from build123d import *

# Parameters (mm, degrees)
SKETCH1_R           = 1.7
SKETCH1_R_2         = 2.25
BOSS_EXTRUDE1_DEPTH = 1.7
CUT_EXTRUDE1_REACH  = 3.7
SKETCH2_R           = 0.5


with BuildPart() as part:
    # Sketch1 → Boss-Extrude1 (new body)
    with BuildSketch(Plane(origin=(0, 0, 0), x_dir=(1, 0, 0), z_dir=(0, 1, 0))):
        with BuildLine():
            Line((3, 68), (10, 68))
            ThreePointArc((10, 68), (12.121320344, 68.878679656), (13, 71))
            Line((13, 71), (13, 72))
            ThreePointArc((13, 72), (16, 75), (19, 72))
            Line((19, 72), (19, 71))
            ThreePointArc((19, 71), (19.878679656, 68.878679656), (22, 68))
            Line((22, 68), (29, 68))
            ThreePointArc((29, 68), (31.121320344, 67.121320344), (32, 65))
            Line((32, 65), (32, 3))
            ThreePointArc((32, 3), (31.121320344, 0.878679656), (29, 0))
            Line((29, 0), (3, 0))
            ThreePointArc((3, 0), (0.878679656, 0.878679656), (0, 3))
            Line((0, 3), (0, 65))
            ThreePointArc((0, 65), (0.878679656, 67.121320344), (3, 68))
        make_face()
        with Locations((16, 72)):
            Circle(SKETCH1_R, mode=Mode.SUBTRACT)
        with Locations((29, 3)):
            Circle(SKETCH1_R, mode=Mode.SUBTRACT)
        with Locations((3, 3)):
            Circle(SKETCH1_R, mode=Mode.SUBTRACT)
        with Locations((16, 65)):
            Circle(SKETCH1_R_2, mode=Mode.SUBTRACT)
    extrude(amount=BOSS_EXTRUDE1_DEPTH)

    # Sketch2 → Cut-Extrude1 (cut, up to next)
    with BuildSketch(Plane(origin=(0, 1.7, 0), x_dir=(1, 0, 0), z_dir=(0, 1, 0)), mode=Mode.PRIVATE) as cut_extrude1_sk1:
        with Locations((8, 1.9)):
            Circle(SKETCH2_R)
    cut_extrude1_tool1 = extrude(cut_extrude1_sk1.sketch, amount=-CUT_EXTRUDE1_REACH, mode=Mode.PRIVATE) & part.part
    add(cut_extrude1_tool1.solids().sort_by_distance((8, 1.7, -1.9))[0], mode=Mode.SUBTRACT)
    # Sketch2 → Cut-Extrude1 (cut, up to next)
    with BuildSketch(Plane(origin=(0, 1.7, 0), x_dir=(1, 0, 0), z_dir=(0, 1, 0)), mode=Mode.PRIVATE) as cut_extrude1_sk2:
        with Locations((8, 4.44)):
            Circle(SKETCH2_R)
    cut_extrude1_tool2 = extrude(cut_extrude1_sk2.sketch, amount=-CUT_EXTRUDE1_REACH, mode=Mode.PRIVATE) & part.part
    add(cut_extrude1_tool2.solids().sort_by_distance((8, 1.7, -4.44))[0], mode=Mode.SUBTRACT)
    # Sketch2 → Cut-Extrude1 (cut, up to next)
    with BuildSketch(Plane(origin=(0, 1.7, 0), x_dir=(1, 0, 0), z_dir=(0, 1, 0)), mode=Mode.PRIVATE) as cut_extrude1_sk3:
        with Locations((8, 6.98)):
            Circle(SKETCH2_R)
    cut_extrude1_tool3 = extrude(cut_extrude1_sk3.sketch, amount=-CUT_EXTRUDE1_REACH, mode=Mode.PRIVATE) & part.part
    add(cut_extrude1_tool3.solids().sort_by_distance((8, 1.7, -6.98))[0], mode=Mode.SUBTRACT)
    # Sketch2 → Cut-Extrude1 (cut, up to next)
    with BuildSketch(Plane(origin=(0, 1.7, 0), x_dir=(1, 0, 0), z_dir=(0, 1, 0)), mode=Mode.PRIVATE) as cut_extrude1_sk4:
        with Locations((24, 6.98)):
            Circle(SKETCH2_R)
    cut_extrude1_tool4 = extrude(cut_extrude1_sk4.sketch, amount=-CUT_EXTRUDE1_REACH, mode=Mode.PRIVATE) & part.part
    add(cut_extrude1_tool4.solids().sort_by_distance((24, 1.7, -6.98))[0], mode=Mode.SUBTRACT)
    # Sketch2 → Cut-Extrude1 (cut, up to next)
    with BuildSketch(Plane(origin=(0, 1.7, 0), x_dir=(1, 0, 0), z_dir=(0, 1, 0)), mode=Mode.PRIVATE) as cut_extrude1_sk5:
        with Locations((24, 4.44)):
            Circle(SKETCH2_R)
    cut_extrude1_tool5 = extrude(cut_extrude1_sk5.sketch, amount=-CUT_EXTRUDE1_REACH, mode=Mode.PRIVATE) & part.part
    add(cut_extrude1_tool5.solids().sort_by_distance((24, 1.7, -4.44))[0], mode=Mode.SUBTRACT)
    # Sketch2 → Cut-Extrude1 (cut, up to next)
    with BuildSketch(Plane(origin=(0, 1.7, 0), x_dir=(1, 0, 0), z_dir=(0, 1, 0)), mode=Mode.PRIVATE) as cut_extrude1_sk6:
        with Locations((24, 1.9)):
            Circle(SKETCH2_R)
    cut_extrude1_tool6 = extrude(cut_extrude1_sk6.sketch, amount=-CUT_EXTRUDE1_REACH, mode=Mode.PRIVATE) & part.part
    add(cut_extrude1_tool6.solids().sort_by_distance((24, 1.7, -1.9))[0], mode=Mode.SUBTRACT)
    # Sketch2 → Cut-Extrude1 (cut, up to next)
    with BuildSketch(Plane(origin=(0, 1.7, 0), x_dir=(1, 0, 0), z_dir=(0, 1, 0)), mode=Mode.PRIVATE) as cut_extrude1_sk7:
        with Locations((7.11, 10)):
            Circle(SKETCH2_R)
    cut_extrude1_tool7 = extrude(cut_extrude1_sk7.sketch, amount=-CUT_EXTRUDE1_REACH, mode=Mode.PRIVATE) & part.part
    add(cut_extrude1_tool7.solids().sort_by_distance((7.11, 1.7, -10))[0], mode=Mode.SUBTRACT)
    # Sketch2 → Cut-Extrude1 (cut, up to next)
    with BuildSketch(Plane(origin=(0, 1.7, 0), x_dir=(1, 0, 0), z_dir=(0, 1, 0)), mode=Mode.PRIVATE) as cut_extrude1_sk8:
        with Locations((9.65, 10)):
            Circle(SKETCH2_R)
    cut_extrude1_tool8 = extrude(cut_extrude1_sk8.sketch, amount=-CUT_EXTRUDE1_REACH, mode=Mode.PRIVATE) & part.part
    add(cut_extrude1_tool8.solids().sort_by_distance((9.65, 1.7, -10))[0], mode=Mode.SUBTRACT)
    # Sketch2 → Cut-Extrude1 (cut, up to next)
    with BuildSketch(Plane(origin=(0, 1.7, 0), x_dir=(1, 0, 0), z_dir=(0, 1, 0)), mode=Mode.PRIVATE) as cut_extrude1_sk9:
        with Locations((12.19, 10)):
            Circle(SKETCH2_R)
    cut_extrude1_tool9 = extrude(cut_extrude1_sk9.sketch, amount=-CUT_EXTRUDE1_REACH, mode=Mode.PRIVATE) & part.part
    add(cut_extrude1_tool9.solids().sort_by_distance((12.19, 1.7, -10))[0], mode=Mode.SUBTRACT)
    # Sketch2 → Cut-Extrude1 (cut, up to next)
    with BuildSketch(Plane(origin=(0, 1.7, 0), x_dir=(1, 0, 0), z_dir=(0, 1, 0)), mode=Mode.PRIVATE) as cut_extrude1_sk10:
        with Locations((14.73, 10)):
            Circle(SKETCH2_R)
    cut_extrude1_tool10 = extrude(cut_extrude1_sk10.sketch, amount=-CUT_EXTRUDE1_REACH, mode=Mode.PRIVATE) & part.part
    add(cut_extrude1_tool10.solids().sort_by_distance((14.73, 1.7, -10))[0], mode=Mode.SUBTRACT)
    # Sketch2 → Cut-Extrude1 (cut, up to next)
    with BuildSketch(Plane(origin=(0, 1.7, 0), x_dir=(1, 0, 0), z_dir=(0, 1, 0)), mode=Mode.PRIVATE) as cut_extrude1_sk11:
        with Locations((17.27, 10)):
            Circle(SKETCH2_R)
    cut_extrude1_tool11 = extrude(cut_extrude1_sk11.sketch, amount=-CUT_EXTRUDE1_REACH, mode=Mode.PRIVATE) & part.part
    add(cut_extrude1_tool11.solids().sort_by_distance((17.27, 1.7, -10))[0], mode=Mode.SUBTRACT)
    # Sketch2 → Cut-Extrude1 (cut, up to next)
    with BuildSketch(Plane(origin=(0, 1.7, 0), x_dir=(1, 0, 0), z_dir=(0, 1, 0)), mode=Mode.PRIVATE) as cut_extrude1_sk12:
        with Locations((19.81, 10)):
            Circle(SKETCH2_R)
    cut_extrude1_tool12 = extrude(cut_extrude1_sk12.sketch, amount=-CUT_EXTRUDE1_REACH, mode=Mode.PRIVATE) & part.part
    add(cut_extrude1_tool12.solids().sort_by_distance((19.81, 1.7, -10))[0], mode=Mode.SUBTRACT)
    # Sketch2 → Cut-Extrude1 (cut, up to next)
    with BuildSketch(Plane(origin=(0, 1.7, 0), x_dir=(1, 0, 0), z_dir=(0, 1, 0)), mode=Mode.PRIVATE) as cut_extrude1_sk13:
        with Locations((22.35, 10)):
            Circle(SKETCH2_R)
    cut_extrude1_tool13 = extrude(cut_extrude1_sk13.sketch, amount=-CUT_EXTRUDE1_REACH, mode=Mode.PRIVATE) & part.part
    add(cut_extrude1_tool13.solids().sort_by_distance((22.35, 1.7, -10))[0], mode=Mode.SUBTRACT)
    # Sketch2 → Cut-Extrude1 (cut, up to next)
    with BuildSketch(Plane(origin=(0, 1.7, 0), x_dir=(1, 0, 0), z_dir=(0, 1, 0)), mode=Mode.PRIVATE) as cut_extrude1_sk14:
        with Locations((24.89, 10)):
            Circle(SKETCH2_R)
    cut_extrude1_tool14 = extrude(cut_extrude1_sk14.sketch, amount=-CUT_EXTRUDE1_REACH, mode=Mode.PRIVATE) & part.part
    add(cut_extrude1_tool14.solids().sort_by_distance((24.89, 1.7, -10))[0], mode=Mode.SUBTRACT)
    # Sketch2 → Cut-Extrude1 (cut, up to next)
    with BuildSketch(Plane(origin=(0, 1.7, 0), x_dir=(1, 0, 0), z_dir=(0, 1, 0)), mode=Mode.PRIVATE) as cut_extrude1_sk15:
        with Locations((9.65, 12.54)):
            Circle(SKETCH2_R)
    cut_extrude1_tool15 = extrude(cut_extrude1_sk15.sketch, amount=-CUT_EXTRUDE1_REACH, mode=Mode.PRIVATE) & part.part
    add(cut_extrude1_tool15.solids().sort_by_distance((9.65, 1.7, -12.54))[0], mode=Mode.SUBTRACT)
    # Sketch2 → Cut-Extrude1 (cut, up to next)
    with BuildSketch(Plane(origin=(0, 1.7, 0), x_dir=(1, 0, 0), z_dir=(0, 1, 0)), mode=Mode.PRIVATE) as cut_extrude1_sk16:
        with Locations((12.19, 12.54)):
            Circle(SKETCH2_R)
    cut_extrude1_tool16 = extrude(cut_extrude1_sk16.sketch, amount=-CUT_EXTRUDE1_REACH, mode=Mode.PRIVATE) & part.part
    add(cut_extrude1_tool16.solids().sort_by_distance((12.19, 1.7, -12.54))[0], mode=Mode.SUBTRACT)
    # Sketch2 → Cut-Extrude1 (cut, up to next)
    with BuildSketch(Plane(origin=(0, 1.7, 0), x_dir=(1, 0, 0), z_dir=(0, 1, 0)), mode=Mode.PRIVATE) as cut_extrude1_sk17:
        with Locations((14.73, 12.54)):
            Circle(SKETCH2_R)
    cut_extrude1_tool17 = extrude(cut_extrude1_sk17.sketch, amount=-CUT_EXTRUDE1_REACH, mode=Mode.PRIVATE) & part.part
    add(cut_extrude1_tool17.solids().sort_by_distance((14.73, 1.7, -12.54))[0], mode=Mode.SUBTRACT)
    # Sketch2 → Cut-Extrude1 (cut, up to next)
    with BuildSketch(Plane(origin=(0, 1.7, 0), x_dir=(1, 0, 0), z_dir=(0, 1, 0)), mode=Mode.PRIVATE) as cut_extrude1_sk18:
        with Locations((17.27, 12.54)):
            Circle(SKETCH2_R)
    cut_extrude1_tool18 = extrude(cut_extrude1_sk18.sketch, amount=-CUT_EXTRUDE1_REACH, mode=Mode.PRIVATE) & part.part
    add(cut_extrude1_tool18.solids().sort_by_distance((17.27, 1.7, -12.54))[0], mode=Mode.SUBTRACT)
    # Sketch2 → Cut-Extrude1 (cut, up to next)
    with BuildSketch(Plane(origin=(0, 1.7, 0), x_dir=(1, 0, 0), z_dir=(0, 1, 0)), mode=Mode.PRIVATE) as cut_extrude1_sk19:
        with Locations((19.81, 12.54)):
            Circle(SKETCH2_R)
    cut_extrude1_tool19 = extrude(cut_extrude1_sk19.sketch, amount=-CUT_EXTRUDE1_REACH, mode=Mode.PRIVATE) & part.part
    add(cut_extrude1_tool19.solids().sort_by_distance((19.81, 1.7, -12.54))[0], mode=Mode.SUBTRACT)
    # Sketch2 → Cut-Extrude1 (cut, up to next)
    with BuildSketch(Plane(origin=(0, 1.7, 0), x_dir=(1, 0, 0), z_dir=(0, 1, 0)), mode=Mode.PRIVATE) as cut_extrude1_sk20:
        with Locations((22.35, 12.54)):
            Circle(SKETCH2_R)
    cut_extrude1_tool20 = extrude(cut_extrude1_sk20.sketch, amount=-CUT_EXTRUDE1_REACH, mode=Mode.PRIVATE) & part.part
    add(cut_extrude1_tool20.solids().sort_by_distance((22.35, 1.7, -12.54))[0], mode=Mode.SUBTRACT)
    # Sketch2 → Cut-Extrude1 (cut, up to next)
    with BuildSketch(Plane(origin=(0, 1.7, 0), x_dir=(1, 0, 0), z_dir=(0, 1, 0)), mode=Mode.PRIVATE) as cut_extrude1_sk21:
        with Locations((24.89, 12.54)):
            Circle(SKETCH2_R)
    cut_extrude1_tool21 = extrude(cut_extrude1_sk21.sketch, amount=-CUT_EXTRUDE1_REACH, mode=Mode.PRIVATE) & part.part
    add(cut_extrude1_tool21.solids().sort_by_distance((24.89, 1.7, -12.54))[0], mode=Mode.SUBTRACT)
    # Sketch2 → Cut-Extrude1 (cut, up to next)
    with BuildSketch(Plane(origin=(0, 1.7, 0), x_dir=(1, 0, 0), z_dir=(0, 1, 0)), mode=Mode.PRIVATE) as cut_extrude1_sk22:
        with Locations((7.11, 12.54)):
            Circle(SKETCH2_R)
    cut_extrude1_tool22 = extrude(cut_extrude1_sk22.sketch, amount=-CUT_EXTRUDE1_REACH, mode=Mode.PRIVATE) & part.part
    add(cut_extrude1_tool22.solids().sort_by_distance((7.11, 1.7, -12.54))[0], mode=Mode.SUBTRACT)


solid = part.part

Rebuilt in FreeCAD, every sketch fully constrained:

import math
import FreeCAD as App
import Part
import Sketcher
from FreeCAD import Vector
Q = App.Units.Quantity

doc = App.newDocument("Part")
body = doc.addObject("PartDesign::Body", "Body")

# Sketch on XZ plane
sketch1 = doc.addObject("Sketcher::SketchObject", "Sketch")
body.addObject(sketch1)
sketch1.AttachmentSupport = (doc.XZ_Plane, [""])
sketch1.MapMode = "FlatFace"
sketch1.addGeometry([
    Part.LineSegment(Vector(10, -68, 0), Vector(3, -68, 0)),  # 0
    Part.ArcOfCircle(Part.Circle(Vector(3, -65, 0), Vector(0, 0, 1), 3), math.radians(180), math.radians(270)),  # 1
    Part.LineSegment(Vector(0, -65, 0), Vector(0, -3, 0)),  # 2
    Part.ArcOfCircle(Part.Circle(Vector(3, -3, 0), Vector(0, 0, 1), 3), math.radians(90), math.radians(180)),  # 3
    Part.LineSegment(Vector(3, 0, 0), Vector(29, 0, 0)),  # 4
    Part.ArcOfCircle(Part.Circle(Vector(29, -3, 0), Vector(0, 0, 1), 3), math.radians(0), math.radians(90)),  # 5
    Part.LineSegment(Vector(32, -3, 0), Vector(32, -65, 0)),  # 6
    Part.ArcOfCircle(Part.Circle(Vector(29, -65, 0), Vector(0, 0, 1), 3), math.radians(-90), math.radians(0)),  # 7
    Part.LineSegment(Vector(29, -68, 0), Vector(22, -68, 0)),  # 8
    Part.ArcOfCircle(Part.Circle(Vector(22, -71, 0), Vector(0, 0, 1), 3), math.radians(90), math.radians(180)),  # 9
    Part.LineSegment(Vector(19, -71, 0), Vector(19, -72, 0)),  # 10
    Part.ArcOfCircle(Part.Circle(Vector(16, -72, 0), Vector(0, 0, 1), 3), math.radians(180), math.radians(360)),  # 11
    Part.LineSegment(Vector(13, -72, 0), Vector(13, -71, 0)),  # 12
    Part.ArcOfCircle(Part.Circle(Vector(10, -71, 0), Vector(0, 0, 1), 3), math.radians(0), math.radians(90)),  # 13
    Part.Circle(Vector(29, -3, 0), Vector(0, 0, 1), 1.7),  # 14
    Part.Circle(Vector(3, -3, 0), Vector(0, 0, 1), 1.7),  # 15
    Part.Circle(Vector(16, -65, 0), Vector(0, 0, 1), 2.2),  # 16
    Part.Circle(Vector(16, -72, 0), Vector(0, 0, 1), 1.7),  # 17
], False)
sketch1.addConstraint([
    Sketcher.Constraint("Tangent", 0, 2, 1, 2),
    Sketcher.Constraint("Tangent", 1, 1, 2, 1),
    Sketcher.Constraint("Tangent", 2, 2, 3, 2),
    Sketcher.Constraint("Tangent", 3, 1, 4, 1),
    Sketcher.Constraint("Tangent", 4, 2, 5, 2),
    Sketcher.Constraint("Tangent", 5, 1, 6, 1),
    Sketcher.Constraint("Tangent", 6, 2, 7, 2),
    Sketcher.Constraint("Tangent", 7, 1, 8, 1),
    Sketcher.Constraint("Tangent", 8, 2, 9, 1),
    Sketcher.Constraint("Tangent", 9, 2, 10, 1),
    Sketcher.Constraint("Tangent", 10, 2, 11, 2),
    Sketcher.Constraint("Tangent", 11, 1, 12, 1),
    Sketcher.Constraint("Tangent", 12, 2, 13, 1),
    Sketcher.Constraint("Tangent", 13, 2, 0, 1),
    Sketcher.Constraint("Horizontal", 0),
    Sketcher.Constraint("Vertical", 2),
    Sketcher.Constraint("Horizontal", 4),
    Sketcher.Constraint("Vertical", 6),
    Sketcher.Constraint("Horizontal", 8),
    Sketcher.Constraint("Vertical", 10),
    Sketcher.Constraint("Vertical", 12),
    Sketcher.Constraint("Coincident", 14, 3, 5, 3),
    Sketcher.Constraint("Coincident", 15, 3, 3, 3),
    Sketcher.Constraint("Coincident", 17, 3, 11, 3),
    Sketcher.Constraint("Equal", 1, 3),
    Sketcher.Constraint("Equal", 3, 5),
    Sketcher.Constraint("Equal", 5, 7),
    Sketcher.Constraint("Equal", 7, 9),
    Sketcher.Constraint("Equal", 9, 11),
    Sketcher.Constraint("Equal", 11, 13),
    Sketcher.Constraint("Equal", 14, 15),
    Sketcher.Constraint("Equal", 15, 17),
    Sketcher.Constraint("PointOnObject", 1, 1, -2),
    Sketcher.Constraint("PointOnObject", 3, 1, -1),
    Sketcher.Constraint("Horizontal", 1, 3, 7, 3),
    Sketcher.Constraint("Horizontal", 7, 3, 16, 3),
    Sketcher.Constraint("Vertical", 11, 3, 16, 3),
    Sketcher.Constraint("Equal", 0, 8),
    Sketcher.Constraint("Radius", 1, Q("3 mm")),
    Sketcher.Constraint("Diameter", 14, Q("3.4 mm")),
    Sketcher.Constraint("Diameter", 16, Q("4.5 mm")),
    Sketcher.Constraint("DistanceX", 0, 2, 0, 1, Q("7 mm")),
    Sketcher.Constraint("DistanceY", 2, 1, 2, 2, Q("62 mm")),
    Sketcher.Constraint("DistanceY", 10, 2, 10, 1, Q("1 mm")),
])
pad1 = doc.addObject("PartDesign::Pad", "Pad")
body.addObject(pad1)
pad1.Profile = sketch1
pad1.Length = 1.7
pad1.Reversed = True

# Sketch on XZ plane
sketch2 = doc.addObject("Sketcher::SketchObject", "Sketch001")
body.addObject(sketch2)
sketch2.AttachmentSupport = (doc.XZ_Plane, [""])
sketch2.MapMode = "FlatFace"
sketch2.AttachmentOffset = App.Placement(Vector(0, 0, -1.7), App.Rotation())
sketch2.addGeometry(Part.Circle(Vector(8, -1.9, 0), Vector(0, 0, 1), 0.5), False)
sketch2.addConstraint([
    Sketcher.Constraint("Diameter", 0, Q("1 mm")),
    Sketcher.Constraint("DistanceX", -1, 1, 0, 3, Q("8 mm")),
    Sketcher.Constraint("DistanceY", 0, 3, -1, 1, Q("1.9 mm")),
])
pocket1 = doc.addObject("PartDesign::Pocket", "Pocket")
body.addObject(pocket1)
pocket1.Profile = sketch2
pocket1.Type = "UpToFirst"
pocket1.Reversed = True

# Sketch on XZ plane
sketch3 = doc.addObject("Sketcher::SketchObject", "Sketch002")
body.addObject(sketch3)
sketch3.AttachmentSupport = (doc.XZ_Plane, [""])
sketch3.MapMode = "FlatFace"
sketch3.AttachmentOffset = App.Placement(Vector(0, 0, -1.7), App.Rotation())
sketch3.addGeometry(Part.Circle(Vector(8, -4.4, 0), Vector(0, 0, 1), 0.5), False)
sketch3.addConstraint([
    Sketcher.Constraint("Diameter", 0, Q("1 mm")),
    Sketcher.Constraint("DistanceX", -1, 1, 0, 3, Q("8 mm")),
    Sketcher.Constraint("DistanceY", 0, 3, -1, 1, Q("4.44 mm")),
])
pocket2 = doc.addObject("PartDesign::Pocket", "Pocket001")
body.addObject(pocket2)
pocket2.Profile = sketch3
pocket2.Type = "UpToFirst"
pocket2.Reversed = True

# Sketch on XZ plane
sketch4 = doc.addObject("Sketcher::SketchObject", "Sketch003")
body.addObject(sketch4)
sketch4.AttachmentSupport = (doc.XZ_Plane, [""])
sketch4.MapMode = "FlatFace"
sketch4.AttachmentOffset = App.Placement(Vector(0, 0, -1.7), App.Rotation())
sketch4.addGeometry(Part.Circle(Vector(8, -7, 0), Vector(0, 0, 1), 0.5), False)
sketch4.addConstraint([
    Sketcher.Constraint("Diameter", 0, Q("1 mm")),
    Sketcher.Constraint("DistanceX", -1, 1, 0, 3, Q("8 mm")),
    Sketcher.Constraint("DistanceY", 0, 3, -1, 1, Q("6.98 mm")),
])
pocket3 = doc.addObject("PartDesign::Pocket", "Pocket002")
body.addObject(pocket3)
pocket3.Profile = sketch4
pocket3.Type = "UpToFirst"
pocket3.Reversed = True

# Sketch on XZ plane
sketch5 = doc.addObject("Sketcher::SketchObject", "Sketch004")
body.addObject(sketch5)
sketch5.AttachmentSupport = (doc.XZ_Plane, [""])
sketch5.MapMode = "FlatFace"
sketch5.AttachmentOffset = App.Placement(Vector(0, 0, -1.7), App.Rotation())
sketch5.addGeometry(Part.Circle(Vector(24, -7, 0), Vector(0, 0, 1), 0.5), False)
sketch5.addConstraint([
    Sketcher.Constraint("Diameter", 0, Q("1 mm")),
    Sketcher.Constraint("DistanceX", -1, 1, 0, 3, Q("24 mm")),
    Sketcher.Constraint("DistanceY", 0, 3, -1, 1, Q("6.98 mm")),
])
pocket4 = doc.addObject("PartDesign::Pocket", "Pocket003")
body.addObject(pocket4)
pocket4.Profile = sketch5
pocket4.Type = "UpToFirst"
pocket4.Reversed = True

# Sketch on XZ plane
sketch6 = doc.addObject("Sketcher::SketchObject", "Sketch005")
body.addObject(sketch6)
sketch6.AttachmentSupport = (doc.XZ_Plane, [""])
sketch6.MapMode = "FlatFace"
sketch6.AttachmentOffset = App.Placement(Vector(0, 0, -1.7), App.Rotation())
sketch6.addGeometry(Part.Circle(Vector(24, -4.4, 0), Vector(0, 0, 1), 0.5), False)
sketch6.addConstraint([
    Sketcher.Constraint("Diameter", 0, Q("1 mm")),
    Sketcher.Constraint("DistanceX", -1, 1, 0, 3, Q("24 mm")),
    Sketcher.Constraint("DistanceY", 0, 3, -1, 1, Q("4.44 mm")),
])
pocket5 = doc.addObject("PartDesign::Pocket", "Pocket004")
body.addObject(pocket5)
pocket5.Profile = sketch6
pocket5.Type = "UpToFirst"
pocket5.Reversed = True

# Sketch on XZ plane
sketch7 = doc.addObject("Sketcher::SketchObject", "Sketch006")
body.addObject(sketch7)
sketch7.AttachmentSupport = (doc.XZ_Plane, [""])
sketch7.MapMode = "FlatFace"
sketch7.AttachmentOffset = App.Placement(Vector(0, 0, -1.7), App.Rotation())
sketch7.addGeometry(Part.Circle(Vector(24, -1.9, 0), Vector(0, 0, 1), 0.5), False)
sketch7.addConstraint([
    Sketcher.Constraint("Diameter", 0, Q("1 mm")),
    Sketcher.Constraint("DistanceX", -1, 1, 0, 3, Q("24 mm")),
    Sketcher.Constraint("DistanceY", 0, 3, -1, 1, Q("1.9 mm")),
])
pocket6 = doc.addObject("PartDesign::Pocket", "Pocket005")
body.addObject(pocket6)
pocket6.Profile = sketch7
pocket6.Type = "UpToFirst"
pocket6.Reversed = True

# Sketch on XZ plane
sketch8 = doc.addObject("Sketcher::SketchObject", "Sketch007")
body.addObject(sketch8)
sketch8.AttachmentSupport = (doc.XZ_Plane, [""])
sketch8.MapMode = "FlatFace"
sketch8.AttachmentOffset = App.Placement(Vector(0, 0, -1.7), App.Rotation())
sketch8.addGeometry(Part.Circle(Vector(7.1, -10, 0), Vector(0, 0, 1), 0.5), False)
sketch8.addConstraint([
    Sketcher.Constraint("Diameter", 0, Q("1 mm")),
    Sketcher.Constraint("DistanceY", 0, 3, -1, 1, Q("10 mm")),
    Sketcher.Constraint("DistanceX", -1, 1, 0, 3, Q("7.11 mm")),
])
pocket7 = doc.addObject("PartDesign::Pocket", "Pocket006")
body.addObject(pocket7)
pocket7.Profile = sketch8
pocket7.Type = "UpToFirst"
pocket7.Reversed = True

# Sketch on XZ plane
sketch9 = doc.addObject("Sketcher::SketchObject", "Sketch008")
body.addObject(sketch9)
sketch9.AttachmentSupport = (doc.XZ_Plane, [""])
sketch9.MapMode = "FlatFace"
sketch9.AttachmentOffset = App.Placement(Vector(0, 0, -1.7), App.Rotation())
sketch9.addGeometry(Part.Circle(Vector(9.7, -10, 0), Vector(0, 0, 1), 0.5), False)
sketch9.addConstraint([
    Sketcher.Constraint("Diameter", 0, Q("1 mm")),
    Sketcher.Constraint("DistanceY", 0, 3, -1, 1, Q("10 mm")),
    Sketcher.Constraint("DistanceX", -1, 1, 0, 3, Q("9.65 mm")),
])
pocket8 = doc.addObject("PartDesign::Pocket", "Pocket007")
body.addObject(pocket8)
pocket8.Profile = sketch9
pocket8.Type = "UpToFirst"
pocket8.Reversed = True

# Sketch on XZ plane
sketch10 = doc.addObject("Sketcher::SketchObject", "Sketch009")
body.addObject(sketch10)
sketch10.AttachmentSupport = (doc.XZ_Plane, [""])
sketch10.MapMode = "FlatFace"
sketch10.AttachmentOffset = App.Placement(Vector(0, 0, -1.7), App.Rotation())
sketch10.addGeometry(Part.Circle(Vector(12.2, -10, 0), Vector(0, 0, 1), 0.5), False)
sketch10.addConstraint([
    Sketcher.Constraint("Diameter", 0, Q("1 mm")),
    Sketcher.Constraint("DistanceY", 0, 3, -1, 1, Q("10 mm")),
    Sketcher.Constraint("DistanceX", -1, 1, 0, 3, Q("12.19 mm")),
])
pocket9 = doc.addObject("PartDesign::Pocket", "Pocket008")
body.addObject(pocket9)
pocket9.Profile = sketch10
pocket9.Type = "UpToFirst"
pocket9.Reversed = True

# Sketch on XZ plane
sketch11 = doc.addObject("Sketcher::SketchObject", "Sketch010")
body.addObject(sketch11)
sketch11.AttachmentSupport = (doc.XZ_Plane, [""])
sketch11.MapMode = "FlatFace"
sketch11.AttachmentOffset = App.Placement(Vector(0, 0, -1.7), App.Rotation())
sketch11.addGeometry(Part.Circle(Vector(14.7, -10, 0), Vector(0, 0, 1), 0.5), False)
sketch11.addConstraint([
    Sketcher.Constraint("Diameter", 0, Q("1 mm")),
    Sketcher.Constraint("DistanceY", 0, 3, -1, 1, Q("10 mm")),
    Sketcher.Constraint("DistanceX", -1, 1, 0, 3, Q("14.73 mm")),
])
pocket10 = doc.addObject("PartDesign::Pocket", "Pocket009")
body.addObject(pocket10)
pocket10.Profile = sketch11
pocket10.Type = "UpToFirst"
pocket10.Reversed = True

# Sketch on XZ plane
sketch12 = doc.addObject("Sketcher::SketchObject", "Sketch011")
body.addObject(sketch12)
sketch12.AttachmentSupport = (doc.XZ_Plane, [""])
sketch12.MapMode = "FlatFace"
sketch12.AttachmentOffset = App.Placement(Vector(0, 0, -1.7), App.Rotation())
sketch12.addGeometry(Part.Circle(Vector(17.3, -10, 0), Vector(0, 0, 1), 0.5), False)
sketch12.addConstraint([
    Sketcher.Constraint("Diameter", 0, Q("1 mm")),
    Sketcher.Constraint("DistanceY", 0, 3, -1, 1, Q("10 mm")),
    Sketcher.Constraint("DistanceX", -1, 1, 0, 3, Q("17.27 mm")),
])
pocket11 = doc.addObject("PartDesign::Pocket", "Pocket010")
body.addObject(pocket11)
pocket11.Profile = sketch12
pocket11.Type = "UpToFirst"
pocket11.Reversed = True

# Sketch on XZ plane
sketch13 = doc.addObject("Sketcher::SketchObject", "Sketch012")
body.addObject(sketch13)
sketch13.AttachmentSupport = (doc.XZ_Plane, [""])
sketch13.MapMode = "FlatFace"
sketch13.AttachmentOffset = App.Placement(Vector(0, 0, -1.7), App.Rotation())
sketch13.addGeometry(Part.Circle(Vector(19.8, -10, 0), Vector(0, 0, 1), 0.5), False)
sketch13.addConstraint([
    Sketcher.Constraint("Diameter", 0, Q("1 mm")),
    Sketcher.Constraint("DistanceY", 0, 3, -1, 1, Q("10 mm")),
    Sketcher.Constraint("DistanceX", -1, 1, 0, 3, Q("19.81 mm")),
])
pocket12 = doc.addObject("PartDesign::Pocket", "Pocket011")
body.addObject(pocket12)
pocket12.Profile = sketch13
pocket12.Type = "UpToFirst"
pocket12.Reversed = True

# Sketch on XZ plane
sketch14 = doc.addObject("Sketcher::SketchObject", "Sketch013")
body.addObject(sketch14)
sketch14.AttachmentSupport = (doc.XZ_Plane, [""])
sketch14.MapMode = "FlatFace"
sketch14.AttachmentOffset = App.Placement(Vector(0, 0, -1.7), App.Rotation())
sketch14.addGeometry(Part.Circle(Vector(22.4, -10, 0), Vector(0, 0, 1), 0.5), False)
sketch14.addConstraint([
    Sketcher.Constraint("Diameter", 0, Q("1 mm")),
    Sketcher.Constraint("DistanceY", 0, 3, -1, 1, Q("10 mm")),
    Sketcher.Constraint("DistanceX", -1, 1, 0, 3, Q("22.35 mm")),
])
pocket13 = doc.addObject("PartDesign::Pocket", "Pocket012")
body.addObject(pocket13)
pocket13.Profile = sketch14
pocket13.Type = "UpToFirst"
pocket13.Reversed = True

# Sketch on XZ plane
sketch15 = doc.addObject("Sketcher::SketchObject", "Sketch014")
body.addObject(sketch15)
sketch15.AttachmentSupport = (doc.XZ_Plane, [""])
sketch15.MapMode = "FlatFace"
sketch15.AttachmentOffset = App.Placement(Vector(0, 0, -1.7), App.Rotation())
sketch15.addGeometry(Part.Circle(Vector(24.9, -10, 0), Vector(0, 0, 1), 0.5), False)
sketch15.addConstraint([
    Sketcher.Constraint("Diameter", 0, Q("1 mm")),
    Sketcher.Constraint("DistanceY", 0, 3, -1, 1, Q("10 mm")),
    Sketcher.Constraint("DistanceX", -1, 1, 0, 3, Q("24.89 mm")),
])
pocket14 = doc.addObject("PartDesign::Pocket", "Pocket013")
body.addObject(pocket14)
pocket14.Profile = sketch15
pocket14.Type = "UpToFirst"
pocket14.Reversed = True

# Sketch on XZ plane
sketch16 = doc.addObject("Sketcher::SketchObject", "Sketch015")
body.addObject(sketch16)
sketch16.AttachmentSupport = (doc.XZ_Plane, [""])
sketch16.MapMode = "FlatFace"
sketch16.AttachmentOffset = App.Placement(Vector(0, 0, -1.7), App.Rotation())
sketch16.addGeometry(Part.Circle(Vector(9.7, -12.5, 0), Vector(0, 0, 1), 0.5), False)
sketch16.addConstraint([
    Sketcher.Constraint("Diameter", 0, Q("1 mm")),
    Sketcher.Constraint("DistanceX", -1, 1, 0, 3, Q("9.65 mm")),
    Sketcher.Constraint("DistanceY", 0, 3, -1, 1, Q("12.54 mm")),
])
pocket15 = doc.addObject("PartDesign::Pocket", "Pocket014")
body.addObject(pocket15)
pocket15.Profile = sketch16
pocket15.Type = "UpToFirst"
pocket15.Reversed = True

# Sketch on XZ plane
sketch17 = doc.addObject("Sketcher::SketchObject", "Sketch016")
body.addObject(sketch17)
sketch17.AttachmentSupport = (doc.XZ_Plane, [""])
sketch17.MapMode = "FlatFace"
sketch17.AttachmentOffset = App.Placement(Vector(0, 0, -1.7), App.Rotation())
sketch17.addGeometry(Part.Circle(Vector(12.2, -12.5, 0), Vector(0, 0, 1), 0.5), False)
sketch17.addConstraint([
    Sketcher.Constraint("Diameter", 0, Q("1 mm")),
    Sketcher.Constraint("DistanceX", -1, 1, 0, 3, Q("12.19 mm")),
    Sketcher.Constraint("DistanceY", 0, 3, -1, 1, Q("12.54 mm")),
])
pocket16 = doc.addObject("PartDesign::Pocket", "Pocket015")
body.addObject(pocket16)
pocket16.Profile = sketch17
pocket16.Type = "UpToFirst"
pocket16.Reversed = True

# Sketch on XZ plane
sketch18 = doc.addObject("Sketcher::SketchObject", "Sketch017")
body.addObject(sketch18)
sketch18.AttachmentSupport = (doc.XZ_Plane, [""])
sketch18.MapMode = "FlatFace"
sketch18.AttachmentOffset = App.Placement(Vector(0, 0, -1.7), App.Rotation())
sketch18.addGeometry(Part.Circle(Vector(14.7, -12.5, 0), Vector(0, 0, 1), 0.5), False)
sketch18.addConstraint([
    Sketcher.Constraint("Diameter", 0, Q("1 mm")),
    Sketcher.Constraint("DistanceX", -1, 1, 0, 3, Q("14.73 mm")),
    Sketcher.Constraint("DistanceY", 0, 3, -1, 1, Q("12.54 mm")),
])
pocket17 = doc.addObject("PartDesign::Pocket", "Pocket016")
body.addObject(pocket17)
pocket17.Profile = sketch18
pocket17.Type = "UpToFirst"
pocket17.Reversed = True

# Sketch on XZ plane
sketch19 = doc.addObject("Sketcher::SketchObject", "Sketch018")
body.addObject(sketch19)
sketch19.AttachmentSupport = (doc.XZ_Plane, [""])
sketch19.MapMode = "FlatFace"
sketch19.AttachmentOffset = App.Placement(Vector(0, 0, -1.7), App.Rotation())
sketch19.addGeometry(Part.Circle(Vector(17.3, -12.5, 0), Vector(0, 0, 1), 0.5), False)
sketch19.addConstraint([
    Sketcher.Constraint("Diameter", 0, Q("1 mm")),
    Sketcher.Constraint("DistanceX", -1, 1, 0, 3, Q("17.27 mm")),
    Sketcher.Constraint("DistanceY", 0, 3, -1, 1, Q("12.54 mm")),
])
pocket18 = doc.addObject("PartDesign::Pocket", "Pocket017")
body.addObject(pocket18)
pocket18.Profile = sketch19
pocket18.Type = "UpToFirst"
pocket18.Reversed = True

# Sketch on XZ plane
sketch20 = doc.addObject("Sketcher::SketchObject", "Sketch019")
body.addObject(sketch20)
sketch20.AttachmentSupport = (doc.XZ_Plane, [""])
sketch20.MapMode = "FlatFace"
sketch20.AttachmentOffset = App.Placement(Vector(0, 0, -1.7), App.Rotation())
sketch20.addGeometry(Part.Circle(Vector(19.8, -12.5, 0), Vector(0, 0, 1), 0.5), False)
sketch20.addConstraint([
    Sketcher.Constraint("Diameter", 0, Q("1 mm")),
    Sketcher.Constraint("DistanceX", -1, 1, 0, 3, Q("19.81 mm")),
    Sketcher.Constraint("DistanceY", 0, 3, -1, 1, Q("12.54 mm")),
])
pocket19 = doc.addObject("PartDesign::Pocket", "Pocket018")
body.addObject(pocket19)
pocket19.Profile = sketch20
pocket19.Type = "UpToFirst"
pocket19.Reversed = True

# Sketch on XZ plane
sketch21 = doc.addObject("Sketcher::SketchObject", "Sketch020")
body.addObject(sketch21)
sketch21.AttachmentSupport = (doc.XZ_Plane, [""])
sketch21.MapMode = "FlatFace"
sketch21.AttachmentOffset = App.Placement(Vector(0, 0, -1.7), App.Rotation())
sketch21.addGeometry(Part.Circle(Vector(22.4, -12.5, 0), Vector(0, 0, 1), 0.5), False)
sketch21.addConstraint([
    Sketcher.Constraint("Diameter", 0, Q("1 mm")),
    Sketcher.Constraint("DistanceX", -1, 1, 0, 3, Q("22.35 mm")),
    Sketcher.Constraint("DistanceY", 0, 3, -1, 1, Q("12.54 mm")),
])
pocket20 = doc.addObject("PartDesign::Pocket", "Pocket019")
body.addObject(pocket20)
pocket20.Profile = sketch21
pocket20.Type = "UpToFirst"
pocket20.Reversed = True

# Sketch on XZ plane
sketch22 = doc.addObject("Sketcher::SketchObject", "Sketch021")
body.addObject(sketch22)
sketch22.AttachmentSupport = (doc.XZ_Plane, [""])
sketch22.MapMode = "FlatFace"
sketch22.AttachmentOffset = App.Placement(Vector(0, 0, -1.7), App.Rotation())
sketch22.addGeometry(Part.Circle(Vector(24.9, -12.5, 0), Vector(0, 0, 1), 0.5), False)
sketch22.addConstraint([
    Sketcher.Constraint("Diameter", 0, Q("1 mm")),
    Sketcher.Constraint("DistanceX", -1, 1, 0, 3, Q("24.89 mm")),
    Sketcher.Constraint("DistanceY", 0, 3, -1, 1, Q("12.54 mm")),
])
pocket21 = doc.addObject("PartDesign::Pocket", "Pocket020")
body.addObject(pocket21)
pocket21.Profile = sketch22
pocket21.Type = "UpToFirst"
pocket21.Reversed = True

# Sketch on XZ plane
sketch23 = doc.addObject("Sketcher::SketchObject", "Sketch022")
body.addObject(sketch23)
sketch23.AttachmentSupport = (doc.XZ_Plane, [""])
sketch23.MapMode = "FlatFace"
sketch23.AttachmentOffset = App.Placement(Vector(0, 0, -1.7), App.Rotation())
sketch23.addGeometry(Part.Circle(Vector(7.1, -12.5, 0), Vector(0, 0, 1), 0.5), False)
sketch23.addConstraint([
    Sketcher.Constraint("Diameter", 0, Q("1 mm")),
    Sketcher.Constraint("DistanceX", -1, 1, 0, 3, Q("7.11 mm")),
    Sketcher.Constraint("DistanceY", 0, 3, -1, 1, Q("12.54 mm")),
])
pocket22 = doc.addObject("PartDesign::Pocket", "Pocket021")
body.addObject(pocket22)
pocket22.Profile = sketch23
pocket22.Type = "UpToFirst"
pocket22.Reversed = True

doc.recompute()
